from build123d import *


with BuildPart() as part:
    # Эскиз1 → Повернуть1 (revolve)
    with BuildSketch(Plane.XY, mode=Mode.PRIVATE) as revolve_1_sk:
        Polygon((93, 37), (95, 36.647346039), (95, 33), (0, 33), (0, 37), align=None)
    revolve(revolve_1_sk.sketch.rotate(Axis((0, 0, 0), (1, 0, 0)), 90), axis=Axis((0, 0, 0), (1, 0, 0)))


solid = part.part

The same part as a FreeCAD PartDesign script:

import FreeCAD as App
import Part
import Sketcher

V = App.Vector
Q = App.Units.Quantity

doc = App.newDocument("Part")
body = doc.addObject("PartDesign::Body", "Body")

# Sketch on XY plane
sketch1 = doc.addObject("Sketcher::SketchObject", "Sketch")
body.addObject(sketch1)
sketch1.AttachmentSupport = (doc.XY_Plane, [""])
sketch1.MapMode = "FlatFace"
sketch1.addGeometry([
    Part.LineSegment(V(95, 36.647346, 0), V(93, 37, 0)),  # 0
    Part.LineSegment(V(93, 37, 0), V(0, 37, 0)),  # 1
    Part.LineSegment(V(0, 37, 0), V(0, 33, 0)),  # 2
    Part.LineSegment(V(0, 33, 0), V(95, 33, 0)),  # 3
    Part.LineSegment(V(95, 33, 0), V(95, 36.647346, 0)),  # 4
], False)
sketch1.addConstraint([
    Sketcher.Constraint("Coincident", 0, 2, 1, 1),
    Sketcher.Constraint("Coincident", 1, 2, 2, 1),
    Sketcher.Constraint("Coincident", 2, 2, 3, 1),
    Sketcher.Constraint("Coincident", 3, 2, 4, 1),
    Sketcher.Constraint("Coincident", 4, 2, 0, 1),
    Sketcher.Constraint("Horizontal", 1),
    Sketcher.Constraint("Vertical", 2),
    Sketcher.Constraint("Horizontal", 3),
    Sketcher.Constraint("Vertical", 4),
    Sketcher.Constraint("PointOnObject", 1, 2, -2),
    Sketcher.Constraint("DistanceX", 1, 2, 1, 1, Q("93 mm")),
    Sketcher.Constraint("DistanceX", 3, 1, 3, 2, Q("95 mm")),
    Sketcher.Constraint("DistanceY", 2, 2, 2, 1, Q("4 mm")),
    Sketcher.Constraint("Angle", 0, Q("170 deg")),
    Sketcher.Constraint("DistanceY", -1, 1, 0, 2, Q("37 mm")),
])
revolution = doc.addObject("PartDesign::Revolution", "Revolution")
body.addObject(revolution)
revolution.Profile = sketch1
revolution.ReferenceAxis = (sketch1, ["H_Axis"])
revolution.Angle = 360

doc.recompute()
